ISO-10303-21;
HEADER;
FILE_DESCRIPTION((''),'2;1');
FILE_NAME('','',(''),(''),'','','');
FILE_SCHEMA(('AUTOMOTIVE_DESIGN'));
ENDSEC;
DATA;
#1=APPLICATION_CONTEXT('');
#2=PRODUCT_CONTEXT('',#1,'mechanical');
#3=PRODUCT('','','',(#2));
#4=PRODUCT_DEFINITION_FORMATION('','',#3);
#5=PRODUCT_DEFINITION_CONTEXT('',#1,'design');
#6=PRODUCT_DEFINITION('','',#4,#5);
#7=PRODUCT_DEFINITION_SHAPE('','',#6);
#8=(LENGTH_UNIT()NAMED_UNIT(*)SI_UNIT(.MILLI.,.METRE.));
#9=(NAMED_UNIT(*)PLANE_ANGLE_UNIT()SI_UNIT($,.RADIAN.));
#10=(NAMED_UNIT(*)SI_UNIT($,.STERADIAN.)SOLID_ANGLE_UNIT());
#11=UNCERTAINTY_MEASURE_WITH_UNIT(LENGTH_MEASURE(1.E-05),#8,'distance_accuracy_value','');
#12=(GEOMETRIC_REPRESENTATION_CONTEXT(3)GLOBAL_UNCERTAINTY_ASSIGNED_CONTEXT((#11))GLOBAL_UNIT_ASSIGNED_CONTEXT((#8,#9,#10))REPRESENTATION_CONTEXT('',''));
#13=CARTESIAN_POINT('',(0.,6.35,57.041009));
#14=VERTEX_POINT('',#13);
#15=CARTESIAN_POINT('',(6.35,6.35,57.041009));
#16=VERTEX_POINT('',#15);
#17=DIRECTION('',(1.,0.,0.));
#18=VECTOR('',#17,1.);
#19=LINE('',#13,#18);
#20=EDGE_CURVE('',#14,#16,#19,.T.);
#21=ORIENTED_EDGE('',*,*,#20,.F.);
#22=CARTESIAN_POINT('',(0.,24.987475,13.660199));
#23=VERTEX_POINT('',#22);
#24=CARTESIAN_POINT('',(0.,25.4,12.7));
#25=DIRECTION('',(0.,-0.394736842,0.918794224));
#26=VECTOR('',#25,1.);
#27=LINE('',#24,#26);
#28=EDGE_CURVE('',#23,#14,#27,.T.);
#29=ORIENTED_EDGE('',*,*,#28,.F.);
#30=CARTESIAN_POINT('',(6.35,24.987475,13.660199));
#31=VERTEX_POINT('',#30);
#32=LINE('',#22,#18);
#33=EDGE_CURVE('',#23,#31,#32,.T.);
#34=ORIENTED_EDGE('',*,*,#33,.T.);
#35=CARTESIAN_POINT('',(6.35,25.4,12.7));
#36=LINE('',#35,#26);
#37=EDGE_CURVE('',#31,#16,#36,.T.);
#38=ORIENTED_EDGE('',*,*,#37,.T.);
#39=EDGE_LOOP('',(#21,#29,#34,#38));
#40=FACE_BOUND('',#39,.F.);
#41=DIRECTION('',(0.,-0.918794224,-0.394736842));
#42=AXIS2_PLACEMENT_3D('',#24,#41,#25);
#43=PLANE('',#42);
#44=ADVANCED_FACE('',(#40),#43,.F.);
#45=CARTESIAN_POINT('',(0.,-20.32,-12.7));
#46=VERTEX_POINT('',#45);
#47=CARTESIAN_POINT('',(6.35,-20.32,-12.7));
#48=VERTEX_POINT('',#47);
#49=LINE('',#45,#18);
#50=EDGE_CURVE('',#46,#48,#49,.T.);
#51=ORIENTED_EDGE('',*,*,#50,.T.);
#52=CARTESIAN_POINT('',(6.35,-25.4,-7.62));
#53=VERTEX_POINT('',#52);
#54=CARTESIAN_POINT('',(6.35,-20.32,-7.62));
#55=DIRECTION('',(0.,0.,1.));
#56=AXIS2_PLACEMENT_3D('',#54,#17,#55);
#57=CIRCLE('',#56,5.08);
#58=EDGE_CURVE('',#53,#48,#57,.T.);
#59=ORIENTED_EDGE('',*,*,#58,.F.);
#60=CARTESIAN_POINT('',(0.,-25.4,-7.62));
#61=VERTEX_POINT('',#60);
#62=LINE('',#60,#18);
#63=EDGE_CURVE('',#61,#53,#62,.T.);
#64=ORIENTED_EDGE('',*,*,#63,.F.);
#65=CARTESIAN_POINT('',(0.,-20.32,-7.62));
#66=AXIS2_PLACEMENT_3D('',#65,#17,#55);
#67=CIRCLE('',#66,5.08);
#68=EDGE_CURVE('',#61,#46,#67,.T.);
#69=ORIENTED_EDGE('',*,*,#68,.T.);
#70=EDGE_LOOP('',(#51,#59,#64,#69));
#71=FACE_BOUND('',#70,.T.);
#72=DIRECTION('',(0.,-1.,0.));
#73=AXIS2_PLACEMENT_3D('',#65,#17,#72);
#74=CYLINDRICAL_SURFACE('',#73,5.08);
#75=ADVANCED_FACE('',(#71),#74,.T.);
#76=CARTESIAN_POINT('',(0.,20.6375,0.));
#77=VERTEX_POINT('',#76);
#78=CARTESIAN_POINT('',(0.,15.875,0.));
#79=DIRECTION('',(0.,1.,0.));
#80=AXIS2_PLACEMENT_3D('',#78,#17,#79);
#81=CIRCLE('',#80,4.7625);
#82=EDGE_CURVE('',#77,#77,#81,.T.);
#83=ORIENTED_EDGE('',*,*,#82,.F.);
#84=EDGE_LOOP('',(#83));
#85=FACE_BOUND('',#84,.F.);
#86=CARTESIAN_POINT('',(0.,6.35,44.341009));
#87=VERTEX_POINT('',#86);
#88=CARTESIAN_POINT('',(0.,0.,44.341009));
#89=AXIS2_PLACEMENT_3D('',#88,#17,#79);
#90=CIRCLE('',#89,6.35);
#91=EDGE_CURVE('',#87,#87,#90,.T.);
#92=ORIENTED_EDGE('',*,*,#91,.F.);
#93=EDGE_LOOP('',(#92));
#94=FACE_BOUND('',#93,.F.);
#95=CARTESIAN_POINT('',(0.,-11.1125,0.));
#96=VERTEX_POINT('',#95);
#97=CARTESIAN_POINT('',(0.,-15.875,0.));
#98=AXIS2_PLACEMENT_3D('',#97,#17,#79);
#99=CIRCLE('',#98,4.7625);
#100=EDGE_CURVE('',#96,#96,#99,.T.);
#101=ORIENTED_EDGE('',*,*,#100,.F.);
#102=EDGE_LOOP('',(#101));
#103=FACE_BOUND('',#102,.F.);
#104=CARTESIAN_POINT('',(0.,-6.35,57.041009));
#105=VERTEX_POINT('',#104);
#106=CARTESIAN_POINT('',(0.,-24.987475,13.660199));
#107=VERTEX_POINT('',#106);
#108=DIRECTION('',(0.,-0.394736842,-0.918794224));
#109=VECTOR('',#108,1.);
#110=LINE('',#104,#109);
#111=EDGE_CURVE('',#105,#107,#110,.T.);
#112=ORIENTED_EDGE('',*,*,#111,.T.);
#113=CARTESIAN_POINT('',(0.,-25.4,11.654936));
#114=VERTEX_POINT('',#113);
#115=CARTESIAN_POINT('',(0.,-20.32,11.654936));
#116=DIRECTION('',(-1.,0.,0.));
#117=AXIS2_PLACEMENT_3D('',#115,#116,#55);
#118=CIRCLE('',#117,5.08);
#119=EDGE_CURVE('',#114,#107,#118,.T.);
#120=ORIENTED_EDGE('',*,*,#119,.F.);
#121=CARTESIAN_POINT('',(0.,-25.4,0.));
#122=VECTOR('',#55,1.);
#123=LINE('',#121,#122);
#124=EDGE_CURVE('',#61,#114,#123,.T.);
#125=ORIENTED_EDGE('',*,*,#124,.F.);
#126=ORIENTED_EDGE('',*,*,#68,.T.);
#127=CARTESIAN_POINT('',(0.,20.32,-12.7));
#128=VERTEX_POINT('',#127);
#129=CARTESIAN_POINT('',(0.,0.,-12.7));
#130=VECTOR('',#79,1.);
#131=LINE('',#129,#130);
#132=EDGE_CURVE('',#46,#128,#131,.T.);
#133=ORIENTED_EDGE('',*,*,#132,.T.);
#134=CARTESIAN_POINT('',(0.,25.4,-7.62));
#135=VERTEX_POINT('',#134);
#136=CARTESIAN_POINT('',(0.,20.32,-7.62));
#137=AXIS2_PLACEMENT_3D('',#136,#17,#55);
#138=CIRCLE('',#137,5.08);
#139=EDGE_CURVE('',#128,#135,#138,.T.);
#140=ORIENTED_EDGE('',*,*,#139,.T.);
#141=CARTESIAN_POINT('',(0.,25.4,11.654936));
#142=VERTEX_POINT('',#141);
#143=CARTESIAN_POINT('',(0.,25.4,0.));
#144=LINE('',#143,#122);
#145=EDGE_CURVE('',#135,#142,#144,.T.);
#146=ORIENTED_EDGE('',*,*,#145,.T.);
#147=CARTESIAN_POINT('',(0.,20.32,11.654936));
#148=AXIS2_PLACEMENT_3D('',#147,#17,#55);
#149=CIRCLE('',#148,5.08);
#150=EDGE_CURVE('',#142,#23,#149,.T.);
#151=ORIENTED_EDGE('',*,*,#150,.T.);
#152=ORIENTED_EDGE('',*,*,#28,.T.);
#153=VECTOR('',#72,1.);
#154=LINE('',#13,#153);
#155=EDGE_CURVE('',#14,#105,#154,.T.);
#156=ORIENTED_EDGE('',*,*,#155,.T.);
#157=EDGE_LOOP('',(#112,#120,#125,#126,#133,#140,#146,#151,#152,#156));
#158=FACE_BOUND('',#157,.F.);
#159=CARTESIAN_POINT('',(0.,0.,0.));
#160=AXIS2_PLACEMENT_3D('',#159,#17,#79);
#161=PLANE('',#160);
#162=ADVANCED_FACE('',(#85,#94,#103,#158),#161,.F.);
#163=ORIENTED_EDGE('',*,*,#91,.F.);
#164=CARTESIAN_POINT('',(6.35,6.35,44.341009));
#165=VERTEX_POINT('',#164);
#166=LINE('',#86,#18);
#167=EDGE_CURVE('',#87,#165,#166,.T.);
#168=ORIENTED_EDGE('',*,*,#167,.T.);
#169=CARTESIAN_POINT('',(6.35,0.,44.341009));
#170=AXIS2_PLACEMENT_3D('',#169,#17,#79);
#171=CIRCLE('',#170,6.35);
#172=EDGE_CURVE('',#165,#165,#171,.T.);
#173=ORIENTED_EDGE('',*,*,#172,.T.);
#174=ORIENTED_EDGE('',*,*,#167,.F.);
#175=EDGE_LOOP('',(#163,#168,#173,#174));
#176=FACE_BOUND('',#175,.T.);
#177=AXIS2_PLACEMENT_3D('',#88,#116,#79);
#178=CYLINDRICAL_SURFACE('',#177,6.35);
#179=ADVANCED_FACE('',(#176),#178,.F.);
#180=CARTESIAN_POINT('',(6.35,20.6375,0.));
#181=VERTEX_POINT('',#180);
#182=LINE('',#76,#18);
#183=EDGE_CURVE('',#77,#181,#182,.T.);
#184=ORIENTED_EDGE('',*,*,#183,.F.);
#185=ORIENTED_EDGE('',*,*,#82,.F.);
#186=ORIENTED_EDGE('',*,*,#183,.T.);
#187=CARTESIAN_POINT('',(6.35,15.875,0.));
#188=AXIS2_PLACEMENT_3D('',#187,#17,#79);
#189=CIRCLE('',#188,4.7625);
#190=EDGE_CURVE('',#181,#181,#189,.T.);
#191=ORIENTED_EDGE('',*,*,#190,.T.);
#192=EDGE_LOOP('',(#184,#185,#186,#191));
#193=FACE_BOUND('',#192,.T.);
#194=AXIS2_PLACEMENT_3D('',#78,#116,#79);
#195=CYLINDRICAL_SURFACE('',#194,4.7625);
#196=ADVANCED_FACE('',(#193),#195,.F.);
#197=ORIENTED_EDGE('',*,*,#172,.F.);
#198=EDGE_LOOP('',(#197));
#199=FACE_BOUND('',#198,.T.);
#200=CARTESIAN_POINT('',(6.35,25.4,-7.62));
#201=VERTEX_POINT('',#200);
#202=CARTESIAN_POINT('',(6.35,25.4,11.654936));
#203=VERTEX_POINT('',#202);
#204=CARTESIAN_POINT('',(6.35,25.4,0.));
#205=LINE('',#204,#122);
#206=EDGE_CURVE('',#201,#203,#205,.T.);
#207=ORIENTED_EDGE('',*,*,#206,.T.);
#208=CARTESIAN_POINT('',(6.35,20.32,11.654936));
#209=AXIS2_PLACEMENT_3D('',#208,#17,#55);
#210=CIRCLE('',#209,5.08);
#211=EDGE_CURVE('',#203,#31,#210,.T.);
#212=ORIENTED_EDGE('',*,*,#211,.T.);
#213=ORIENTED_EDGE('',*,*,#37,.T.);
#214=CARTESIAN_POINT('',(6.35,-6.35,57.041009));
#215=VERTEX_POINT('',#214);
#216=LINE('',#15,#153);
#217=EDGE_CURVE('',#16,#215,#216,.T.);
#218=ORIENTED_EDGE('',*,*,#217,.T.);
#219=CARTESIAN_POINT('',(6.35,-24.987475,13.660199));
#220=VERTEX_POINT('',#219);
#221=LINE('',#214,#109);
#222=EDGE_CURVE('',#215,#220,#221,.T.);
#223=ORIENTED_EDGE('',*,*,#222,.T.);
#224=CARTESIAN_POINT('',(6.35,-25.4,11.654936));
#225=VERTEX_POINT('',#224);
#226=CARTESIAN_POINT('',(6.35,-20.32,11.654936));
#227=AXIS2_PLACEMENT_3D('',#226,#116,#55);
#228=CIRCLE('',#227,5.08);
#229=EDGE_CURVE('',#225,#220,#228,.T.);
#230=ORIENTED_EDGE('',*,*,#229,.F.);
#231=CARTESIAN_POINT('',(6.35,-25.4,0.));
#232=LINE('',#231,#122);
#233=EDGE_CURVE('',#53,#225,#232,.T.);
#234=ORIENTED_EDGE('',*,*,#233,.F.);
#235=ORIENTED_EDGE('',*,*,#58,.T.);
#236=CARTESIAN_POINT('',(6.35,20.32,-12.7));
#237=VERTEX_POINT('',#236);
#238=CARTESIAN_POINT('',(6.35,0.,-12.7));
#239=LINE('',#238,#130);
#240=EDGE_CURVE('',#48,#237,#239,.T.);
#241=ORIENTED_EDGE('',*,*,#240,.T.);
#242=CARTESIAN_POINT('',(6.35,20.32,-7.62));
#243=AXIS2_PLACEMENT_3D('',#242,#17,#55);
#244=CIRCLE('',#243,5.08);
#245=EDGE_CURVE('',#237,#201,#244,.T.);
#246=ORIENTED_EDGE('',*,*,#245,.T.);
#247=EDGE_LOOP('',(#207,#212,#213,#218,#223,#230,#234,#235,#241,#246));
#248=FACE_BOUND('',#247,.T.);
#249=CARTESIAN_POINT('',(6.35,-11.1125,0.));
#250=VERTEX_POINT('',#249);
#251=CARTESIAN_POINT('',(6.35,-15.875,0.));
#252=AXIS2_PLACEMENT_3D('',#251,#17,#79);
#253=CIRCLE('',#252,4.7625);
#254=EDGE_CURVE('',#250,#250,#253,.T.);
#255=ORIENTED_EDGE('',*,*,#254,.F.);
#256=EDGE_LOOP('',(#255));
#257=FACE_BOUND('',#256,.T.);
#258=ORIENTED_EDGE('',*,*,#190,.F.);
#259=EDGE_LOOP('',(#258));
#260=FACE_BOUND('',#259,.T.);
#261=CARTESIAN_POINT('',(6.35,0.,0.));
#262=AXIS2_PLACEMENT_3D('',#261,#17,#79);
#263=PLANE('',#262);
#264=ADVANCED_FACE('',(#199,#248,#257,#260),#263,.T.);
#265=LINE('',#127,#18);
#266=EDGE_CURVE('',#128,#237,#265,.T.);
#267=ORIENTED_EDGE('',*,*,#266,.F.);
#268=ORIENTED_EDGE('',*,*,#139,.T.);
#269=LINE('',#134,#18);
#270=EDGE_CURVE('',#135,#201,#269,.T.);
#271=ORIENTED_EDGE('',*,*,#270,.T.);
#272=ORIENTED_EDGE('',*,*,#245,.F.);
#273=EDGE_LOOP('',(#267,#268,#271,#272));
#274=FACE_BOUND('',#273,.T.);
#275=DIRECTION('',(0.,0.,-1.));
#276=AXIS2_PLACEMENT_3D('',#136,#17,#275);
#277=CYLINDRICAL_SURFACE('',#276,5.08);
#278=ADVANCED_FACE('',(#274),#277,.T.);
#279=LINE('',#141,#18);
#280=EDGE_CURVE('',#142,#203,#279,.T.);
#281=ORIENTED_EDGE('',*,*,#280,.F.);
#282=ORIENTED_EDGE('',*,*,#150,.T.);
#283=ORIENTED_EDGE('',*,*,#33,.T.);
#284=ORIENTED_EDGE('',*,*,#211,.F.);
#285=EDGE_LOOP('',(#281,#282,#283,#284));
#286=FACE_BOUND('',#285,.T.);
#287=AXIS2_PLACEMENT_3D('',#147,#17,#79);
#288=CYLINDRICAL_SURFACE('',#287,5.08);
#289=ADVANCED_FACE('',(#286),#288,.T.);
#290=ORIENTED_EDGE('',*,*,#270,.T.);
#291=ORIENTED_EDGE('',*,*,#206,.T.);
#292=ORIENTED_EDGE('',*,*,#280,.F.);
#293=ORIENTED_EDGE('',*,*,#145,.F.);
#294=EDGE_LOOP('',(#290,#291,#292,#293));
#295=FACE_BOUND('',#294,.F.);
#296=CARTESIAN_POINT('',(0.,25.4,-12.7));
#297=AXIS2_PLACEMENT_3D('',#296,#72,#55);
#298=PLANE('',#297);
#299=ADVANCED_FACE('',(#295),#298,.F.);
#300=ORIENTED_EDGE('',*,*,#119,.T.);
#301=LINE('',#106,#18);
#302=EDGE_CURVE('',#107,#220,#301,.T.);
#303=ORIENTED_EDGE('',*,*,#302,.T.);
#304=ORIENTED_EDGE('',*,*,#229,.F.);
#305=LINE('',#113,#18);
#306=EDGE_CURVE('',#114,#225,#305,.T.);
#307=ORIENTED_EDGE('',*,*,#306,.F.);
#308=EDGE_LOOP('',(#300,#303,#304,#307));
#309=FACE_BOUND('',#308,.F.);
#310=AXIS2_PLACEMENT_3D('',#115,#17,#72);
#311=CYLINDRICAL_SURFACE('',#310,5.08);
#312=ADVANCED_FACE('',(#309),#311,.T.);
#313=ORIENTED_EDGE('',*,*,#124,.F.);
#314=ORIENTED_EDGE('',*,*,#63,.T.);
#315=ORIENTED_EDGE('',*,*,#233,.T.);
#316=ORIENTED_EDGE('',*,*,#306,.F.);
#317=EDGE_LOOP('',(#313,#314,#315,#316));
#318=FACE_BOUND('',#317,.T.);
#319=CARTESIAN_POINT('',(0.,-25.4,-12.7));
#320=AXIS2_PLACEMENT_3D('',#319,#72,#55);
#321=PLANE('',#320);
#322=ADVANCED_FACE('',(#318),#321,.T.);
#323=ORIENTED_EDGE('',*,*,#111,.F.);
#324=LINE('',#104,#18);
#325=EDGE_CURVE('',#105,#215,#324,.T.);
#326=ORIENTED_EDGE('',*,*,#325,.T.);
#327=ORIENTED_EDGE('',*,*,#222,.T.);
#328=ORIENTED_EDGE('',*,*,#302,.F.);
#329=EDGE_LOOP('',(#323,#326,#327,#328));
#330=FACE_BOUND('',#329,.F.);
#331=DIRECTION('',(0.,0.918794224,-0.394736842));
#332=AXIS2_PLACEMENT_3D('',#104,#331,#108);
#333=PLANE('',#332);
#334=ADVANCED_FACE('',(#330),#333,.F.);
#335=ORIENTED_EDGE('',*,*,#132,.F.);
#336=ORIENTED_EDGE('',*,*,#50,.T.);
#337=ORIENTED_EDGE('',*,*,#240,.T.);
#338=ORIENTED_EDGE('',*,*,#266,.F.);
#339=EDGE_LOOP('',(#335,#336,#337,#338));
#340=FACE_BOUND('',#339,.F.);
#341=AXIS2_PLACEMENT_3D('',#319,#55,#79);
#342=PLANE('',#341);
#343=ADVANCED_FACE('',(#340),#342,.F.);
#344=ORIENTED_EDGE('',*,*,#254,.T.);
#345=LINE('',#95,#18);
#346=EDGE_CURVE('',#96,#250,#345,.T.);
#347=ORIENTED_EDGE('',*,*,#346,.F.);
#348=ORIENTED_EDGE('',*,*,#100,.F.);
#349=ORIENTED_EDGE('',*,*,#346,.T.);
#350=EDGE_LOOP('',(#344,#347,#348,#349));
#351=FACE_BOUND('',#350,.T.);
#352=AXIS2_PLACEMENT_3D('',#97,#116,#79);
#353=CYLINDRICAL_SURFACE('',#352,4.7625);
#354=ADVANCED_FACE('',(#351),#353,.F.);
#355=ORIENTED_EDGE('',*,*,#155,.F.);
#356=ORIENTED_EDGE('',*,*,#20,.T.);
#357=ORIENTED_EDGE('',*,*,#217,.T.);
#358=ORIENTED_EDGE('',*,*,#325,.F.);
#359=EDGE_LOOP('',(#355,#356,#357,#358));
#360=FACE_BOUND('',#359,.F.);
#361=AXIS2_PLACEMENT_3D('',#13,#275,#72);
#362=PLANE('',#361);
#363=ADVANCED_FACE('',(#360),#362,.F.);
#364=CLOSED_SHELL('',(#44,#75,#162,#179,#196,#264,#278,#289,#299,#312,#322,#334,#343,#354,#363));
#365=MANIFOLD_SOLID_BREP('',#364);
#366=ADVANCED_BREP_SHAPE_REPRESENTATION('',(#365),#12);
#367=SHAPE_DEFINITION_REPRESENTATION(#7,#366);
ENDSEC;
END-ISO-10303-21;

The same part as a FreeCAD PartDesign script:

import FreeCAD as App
import Part
import Sketcher
from FreeCAD import Vector
Q = App.Units.Quantity


def edges_at(feature, points):
    """Names of the edges that pass closest to the given points."""
    edges = feature.Shape.Edges
    near = lambda p: min(range(len(edges)), key=lambda i: edges[i].distToShape(Part.Vertex(*p))[0])
    return sorted({f"Edge{near(p) + 1}" for p in points})


def add_polygon(sketch, points):
    """Adds a closed chain of lines whose ends are joined by coincident constraints."""
    first, n = sketch.GeometryCount, len(points)
    for a, b in zip(points, points[1:] + points[:1]):
        sketch.addGeometry(Part.LineSegment(App.Vector(*a, 0), App.Vector(*b, 0)), False)
    for i in range(n):
        sketch.addConstraint(Sketcher.Constraint("Coincident", first + i, 2, first + (i + 1) % n, 1))

doc = App.newDocument("Part")
body = doc.addObject("PartDesign::Body", "Body")

# Sketch on YZ plane
sketch1 = doc.addObject("Sketcher::SketchObject", "Sketch")
body.addObject(sketch1)
sketch1.AttachmentSupport = (doc.YZ_Plane, [""])
sketch1.MapMode = "FlatFace"
add_polygon(sketch1, [(-25.4, 12.7), (-25.4, -12.7), (25.4, -12.7), (25.4, 12.7), (6.3, 57), (-6.3, 57)])  # lines 0-5
sketch1.addGeometry(Part.Circle(Vector(-15.9, 0, 0), Vector(0, 0, 1), 4.8), False)  # 6
sketch1.addGeometry(Part.Circle(Vector(15.9, 0, 0), Vector(0, 0, 1), 4.8), False)  # 7
sketch1.addGeometry(Part.Circle(Vector(0, 44.3, 0), Vector(0, 0, 1), 6.3), False)  # 8
sketch1.addConstraint([
    Sketcher.Constraint("Vertical", 0),
    Sketcher.Constraint("Horizontal", 1),
    Sketcher.Constraint("Vertical", 2),
    Sketcher.Constraint("Horizontal", 4),
    Sketcher.Constraint("Equal", 6, 7),
    Sketcher.Constraint("Symmetric", 6, 3, 7, 3, -1, 1),
    Sketcher.Constraint("Symmetric", 0, 2, 2, 2, -1, 1),
    Sketcher.Constraint("PointOnObject", 6, 3, -1),
    Sketcher.Constraint("PointOnObject", 8, 3, -2),
    Sketcher.Constraint("Horizontal", 2, 2, 5, 2),
    Sketcher.Constraint("Equal", 3, 5),
    Sketcher.Constraint("Diameter", 8, Q("0.5 in")),
    Sketcher.Constraint("DistanceX", 1, 1, 1, 2, Q("2 in")),
    Sketcher.Constraint("DistanceY", 0, 2, 0, 1, Q("1 in")),
    Sketcher.Constraint("Diameter", 6, Q("0.375 in")),
    Sketcher.Constraint("DistanceX", 4, 2, 4, 1, Q("0.5 in")),
    Sketcher.Constraint("Distance", 3, Q("1.9 in")),
    Sketcher.Constraint("DistanceY", 8, 3, 3, 2, Q("0.5 in")),
    Sketcher.Constraint("DistanceX", 6, 3, 7, 3, Q("1.25 in")),
])
pad1 = doc.addObject("PartDesign::Pad", "Pad")
body.addObject(pad1)
pad1.Profile = sketch1
pad1.Length = Q("0.25 in")
doc.recompute()

fillet = doc.addObject("PartDesign::Fillet", "Fillet")
body.addObject(fillet)
fillet.Base = (pad1, edges_at(pad1, [
    (3.175, -25.4, -12.7),
    (3.175, 25.4, -12.7),
    (3.175, 25.4, 12.7),
    (3.175, -25.4, 12.7),
]))
fillet.Radius = Q("0.2 in")

doc.recompute()
